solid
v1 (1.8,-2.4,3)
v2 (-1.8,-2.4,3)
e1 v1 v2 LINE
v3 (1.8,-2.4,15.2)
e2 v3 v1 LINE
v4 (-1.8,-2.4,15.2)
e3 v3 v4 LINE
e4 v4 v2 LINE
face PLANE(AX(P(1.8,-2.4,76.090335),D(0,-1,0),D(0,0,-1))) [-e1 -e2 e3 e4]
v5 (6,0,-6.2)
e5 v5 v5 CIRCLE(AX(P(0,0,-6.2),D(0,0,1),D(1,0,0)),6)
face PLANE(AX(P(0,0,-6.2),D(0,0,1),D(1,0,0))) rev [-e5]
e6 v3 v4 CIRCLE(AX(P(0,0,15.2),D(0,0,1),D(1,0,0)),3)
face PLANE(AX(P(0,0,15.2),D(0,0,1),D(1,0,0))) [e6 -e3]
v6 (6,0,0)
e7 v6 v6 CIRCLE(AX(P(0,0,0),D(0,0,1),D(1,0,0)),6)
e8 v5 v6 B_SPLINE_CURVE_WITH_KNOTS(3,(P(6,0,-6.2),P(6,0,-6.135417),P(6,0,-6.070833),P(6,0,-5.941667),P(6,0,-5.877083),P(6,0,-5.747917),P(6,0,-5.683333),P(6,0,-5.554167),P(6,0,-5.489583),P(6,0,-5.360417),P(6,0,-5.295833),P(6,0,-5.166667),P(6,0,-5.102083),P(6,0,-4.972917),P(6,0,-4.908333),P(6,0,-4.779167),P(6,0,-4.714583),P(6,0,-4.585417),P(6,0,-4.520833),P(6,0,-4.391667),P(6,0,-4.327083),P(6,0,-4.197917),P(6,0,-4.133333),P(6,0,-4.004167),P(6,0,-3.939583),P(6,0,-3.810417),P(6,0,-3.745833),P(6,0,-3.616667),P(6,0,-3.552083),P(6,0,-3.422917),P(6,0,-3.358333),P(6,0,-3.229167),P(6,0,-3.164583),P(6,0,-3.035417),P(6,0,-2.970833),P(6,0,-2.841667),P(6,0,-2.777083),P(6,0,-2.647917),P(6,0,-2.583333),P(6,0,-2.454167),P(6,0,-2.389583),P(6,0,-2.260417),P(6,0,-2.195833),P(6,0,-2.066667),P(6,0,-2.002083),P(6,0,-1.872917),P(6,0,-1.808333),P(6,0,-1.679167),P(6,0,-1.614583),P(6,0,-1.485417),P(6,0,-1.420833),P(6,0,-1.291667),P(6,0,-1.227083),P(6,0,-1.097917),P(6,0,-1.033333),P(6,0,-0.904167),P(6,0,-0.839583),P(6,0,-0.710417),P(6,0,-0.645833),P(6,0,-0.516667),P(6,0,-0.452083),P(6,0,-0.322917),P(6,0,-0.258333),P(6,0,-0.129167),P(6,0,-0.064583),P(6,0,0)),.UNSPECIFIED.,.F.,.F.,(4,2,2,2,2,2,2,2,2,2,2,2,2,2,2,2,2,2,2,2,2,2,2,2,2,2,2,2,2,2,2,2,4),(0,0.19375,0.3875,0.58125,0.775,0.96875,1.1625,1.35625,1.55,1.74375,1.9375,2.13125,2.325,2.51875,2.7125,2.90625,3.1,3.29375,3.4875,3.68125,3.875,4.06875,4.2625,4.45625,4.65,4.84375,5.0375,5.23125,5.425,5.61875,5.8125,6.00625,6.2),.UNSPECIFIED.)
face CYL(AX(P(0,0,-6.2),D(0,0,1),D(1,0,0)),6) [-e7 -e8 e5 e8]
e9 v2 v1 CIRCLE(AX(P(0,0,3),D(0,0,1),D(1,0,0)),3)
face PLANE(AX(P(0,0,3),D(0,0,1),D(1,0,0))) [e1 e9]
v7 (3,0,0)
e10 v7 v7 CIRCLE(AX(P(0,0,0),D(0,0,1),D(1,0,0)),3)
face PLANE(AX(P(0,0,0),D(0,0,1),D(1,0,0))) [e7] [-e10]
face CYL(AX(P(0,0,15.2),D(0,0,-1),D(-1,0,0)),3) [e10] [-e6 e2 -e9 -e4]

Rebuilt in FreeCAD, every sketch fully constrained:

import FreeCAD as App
import Part
import Sketcher

V = App.Vector
Q = App.Units.Quantity

doc = App.newDocument("Part")
params = doc.addObject("Spreadsheet::Sheet", "Params")
for row, (alias, value) in enumerate([
    ("sketch1_diameter", "12 mm"),
    ("pad1_length", "6.2 mm"),
    ("sketch2_diameter", "6 mm"),
    ("pad2_length", "15.2 mm"),
    ("pocket1_length", "24.02086 mm"),
    ("pocket1_length2", "12.2 mm"),
], start=1):
    params.set(f"A{row}", alias)
    params.set(f"B{row}", "=" + value)
    params.setAlias(f"B{row}", alias)

body = doc.addObject("PartDesign::Body", "Body")

sketch1 = body.newObject("Sketcher::SketchObject", "Sketch")
sketch1.AttachmentSupport = (doc.getObject("XY_Plane"), [""])
sketch1.MapMode = "FlatFace"
sketch1.addGeometry(Part.Circle(V(0, 0, 0), V(0, 0, 1), 6), False)
sketch1.addConstraint([
    Sketcher.Constraint("Coincident", 0, 3, -1, 1),
    Sketcher.Constraint("Diameter", 0, Q("12 mm")),
])
sketch1.setExpression("Constraints[1]", "Params.sketch1_diameter")
pad1 = body.newObject("PartDesign::Pad", "Pad")
pad1.Profile = sketch1
pad1.setExpression("Length", "Params.pad1_length")
pad1.Reversed = True

sketch2 = body.newObject("Sketcher::SketchObject", "Sketch001")
sketch2.AttachmentSupport = (doc.getObject("XY_Plane"), [""])
sketch2.MapMode = "FlatFace"
sketch2.addGeometry(Part.Circle(V(0, 0, 0), V(0, 0, 1), 3), False)
sketch2.addConstraint([
    Sketcher.Constraint("Coincident", 0, 3, -1, 1),
    Sketcher.Constraint("Diameter", 0, Q("6 mm")),
])
sketch2.setExpression("Constraints[1]", "Params.sketch2_diameter")
pad2 = body.newObject("PartDesign::Pad", "Pad001")
pad2.Profile = sketch2
pad2.setExpression("Length", "Params.pad2_length")

sketch3 = body.newObject("Sketcher::SketchObject", "Sketch002")
sketch3.AttachmentSupport = (doc.getObject("XY_Plane"), [""])
sketch3.MapMode = "FlatFace"
sketch3.AttachmentOffset = App.Placement(V(0, 0, 15.2), App.Rotation())
sketch3.addGeometry([
    Part.LineSegment(V(35, -2, 0), V(-35, -2, 0)),
    Part.LineSegment(V(-35, -2, 0), V(-35, -68, 0)),
    Part.LineSegment(V(-35, -68, 0), V(35, -68, 0)),
    Part.LineSegment(V(35, -68, 0), V(35, -2, 0)),
], False)
sketch3.addConstraint([
    Sketcher.Constraint("Coincident", 0, 2, 1, 1),
    Sketcher.Constraint("Coincident", 1, 2, 2, 1),
    Sketcher.Constraint("Coincident", 2, 2, 3, 1),
    Sketcher.Constraint("Coincident", 3, 2, 0, 1),
    Sketcher.Constraint("Horizontal", 0),
    Sketcher.Constraint("Vertical", 1),
    Sketcher.Constraint("Horizontal", 2),
    Sketcher.Constraint("Vertical", 3),
    Sketcher.Constraint("DistanceY", 0, 2, -1, 1, Q("2.4 mm")),
    Sketcher.Constraint("DistanceX", 0, 2, 0, 1, Q("69.451936 mm")),
    Sketcher.Constraint("DistanceY", 1, 2, 1, 1, Q("65.851936 mm")),
    Sketcher.Constraint("DistanceX", 0, 2, -1, 1, Q("34.725968 mm")),
])
pocket1 = body.newObject("PartDesign::Pocket", "Pocket")
pocket1.Profile = sketch3
pocket1.Type = "TwoLengths"
pocket1.setExpression("Length", "Params.pocket1_length")
pocket1.setExpression("Length2", "Params.pocket1_length2")
pocket1.Reversed = True

doc.recompute()
